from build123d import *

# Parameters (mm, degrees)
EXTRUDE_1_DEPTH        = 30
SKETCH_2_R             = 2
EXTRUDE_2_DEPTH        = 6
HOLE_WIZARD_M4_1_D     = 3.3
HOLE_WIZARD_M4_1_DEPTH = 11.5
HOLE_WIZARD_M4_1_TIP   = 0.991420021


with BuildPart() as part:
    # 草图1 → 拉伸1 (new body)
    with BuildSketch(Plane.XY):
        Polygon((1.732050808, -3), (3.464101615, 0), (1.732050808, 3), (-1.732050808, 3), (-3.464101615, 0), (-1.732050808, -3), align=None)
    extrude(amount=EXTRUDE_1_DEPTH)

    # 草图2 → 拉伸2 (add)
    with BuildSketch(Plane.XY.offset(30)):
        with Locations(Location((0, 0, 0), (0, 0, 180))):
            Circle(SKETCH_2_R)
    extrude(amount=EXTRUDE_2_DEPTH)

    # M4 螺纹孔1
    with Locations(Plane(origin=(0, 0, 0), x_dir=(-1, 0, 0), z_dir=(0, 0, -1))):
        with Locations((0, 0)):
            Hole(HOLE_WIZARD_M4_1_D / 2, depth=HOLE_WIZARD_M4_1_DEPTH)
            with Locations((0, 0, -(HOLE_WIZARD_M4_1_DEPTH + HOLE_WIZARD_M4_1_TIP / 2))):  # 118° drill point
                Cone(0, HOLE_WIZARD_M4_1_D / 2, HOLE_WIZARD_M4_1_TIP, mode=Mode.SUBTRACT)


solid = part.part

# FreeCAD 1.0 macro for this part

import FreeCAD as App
import Part
import Sketcher

V = App.Vector
Q = App.Units.Quantity


def add_polygon(sketch, points):
    """Adds a closed chain of lines whose ends are joined by coincident constraints."""
    first, n = sketch.GeometryCount, len(points)
    for a, b in zip(points, points[1:] + points[:1]):
        sketch.addGeometry(Part.LineSegment(App.Vector(*a, 0), App.Vector(*b, 0)), False)
    for i in range(n):
        sketch.addConstraint(Sketcher.Constraint("Coincident", first + i, 2, first + (i + 1) % n, 1))

doc = App.newDocument("Part")
params = doc.addObject("Spreadsheet::Sheet", "Params")
for row, (alias, value) in enumerate([
    ("pad1_length", "30 mm"),
    ("sketch2_diameter", "4 mm"),
    ("pad2_length", "6 mm"),
    ("sketch3_diameter", "3.3 mm"),
    ("hole_diameter", "3.3 mm"),
    ("hole_depth", "11.5 mm"),
], start=1):
    params.set(f"A{row}", alias)
    params.set(f"B{row}", "=" + value)
    params.setAlias(f"B{row}", alias)

body = doc.addObject("PartDesign::Body", "Body")

# Sketch on XY plane
sketch1 = body.newObject("Sketcher::SketchObject", "Sketch")
sketch1.AttachmentSupport = (doc.getObject("XY_Plane"), [""])
sketch1.MapMode = "FlatFace"
add_polygon(sketch1, [(1.732051, -3), (3.464102, 0), (1.732051, 3), (-1.732051, 3), (-3.464102, 0), (-1.732051, -3)])  # lines 0-5
sketch1.addConstraint([
    Sketcher.Constraint("Horizontal", 2),
    Sketcher.Constraint("Horizontal", 5),
    Sketcher.Constraint("Symmetric", 0, 2, 3, 2, -1, 1),
    Sketcher.Constraint("Symmetric", 1, 2, 4, 2, -1, 1),
    Sketcher.Constraint("PointOnObject", 0, 2, -1),
    Sketcher.Constraint("Parallel", 0, 3),
    Sketcher.Constraint("Vertical", 2, 2, 4, 2),
    Sketcher.Constraint("Angle", 0, Q("60 deg")),
    Sketcher.Constraint("DistanceY", -1, 1, 1, 2, Q("3 mm")),
    Sketcher.Constraint("DistanceX", 2, 2, 2, 1, Q("3.464102 mm")),
])
pad1 = body.newObject("PartDesign::Pad", "Pad")
pad1.Profile = sketch1
pad1.setExpression("Length", "Params.pad1_length")

# Sketch on XY plane
sketch2 = body.newObject("Sketcher::SketchObject", "Sketch001")
sketch2.AttachmentSupport = (doc.getObject("XY_Plane"), [""])
sketch2.MapMode = "FlatFace"
sketch2.AttachmentOffset = App.Placement(V(0, 0, 30), App.Rotation())
sketch2.addGeometry(Part.Circle(V(0, 0, 0), V(0, 0, 1), 2), False)
sketch2.addConstraint([
    Sketcher.Constraint("Coincident", 0, 3, -1, 1),
    Sketcher.Constraint("Diameter", 0, Q("4 mm")),
])
sketch2.setExpression("Constraints[1]", "Params.sketch2_diameter")
pad2 = body.newObject("PartDesign::Pad", "Pad001")
pad2.Profile = sketch2
pad2.setExpression("Length", "Params.pad2_length")

# Sketch on XY plane
sketch3 = body.newObject("Sketcher::SketchObject", "Sketch002")
sketch3.AttachmentSupport = (doc.getObject("XY_Plane"), [""])
sketch3.MapMode = "FlatFace"
sketch3.addGeometry(Part.Circle(V(0, 0, 0), V(0, 0, 1), 1.65), False)
sketch3.addConstraint([
    Sketcher.Constraint("Coincident", 0, 3, -1, 1),
    Sketcher.Constraint("Diameter", 0, Q("3.3 mm")),
])
sketch3.setExpression("Constraints[1]", "Params.sketch3_diameter")
doc.recompute()
hole = body.newObject("PartDesign::Hole", "Hole")
hole.Profile = sketch3
hole.ThreadType = "None"
hole.setExpression("Diameter", "Params.hole_diameter")
hole.DepthType = "Dimension"
hole.setExpression("Depth", "Params.hole_depth")
hole.DrillPoint = "Angled"
hole.DrillPointAngle = 118
hole.Reversed = True

doc.recompute()
